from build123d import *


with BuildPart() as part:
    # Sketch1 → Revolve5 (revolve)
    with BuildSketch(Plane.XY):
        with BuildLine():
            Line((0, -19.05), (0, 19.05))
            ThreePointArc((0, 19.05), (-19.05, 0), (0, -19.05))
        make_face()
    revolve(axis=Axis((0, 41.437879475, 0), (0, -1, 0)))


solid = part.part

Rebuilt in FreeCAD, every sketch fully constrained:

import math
import FreeCAD as App
import Part
import Sketcher
from FreeCAD import Vector
Q = App.Units.Quantity

doc = App.newDocument("Part")
body = doc.addObject("PartDesign::Body", "Body")

sketch1 = body.newObject("Sketcher::SketchObject", "Sketch")
sketch1.AttachmentSupport = (doc.getObject("XY_Plane"), [""])
sketch1.MapMode = "FlatFace"
sketch1.addGeometry([
    Part.LineSegment(Vector(0, -19.05, 0), Vector(0, 19.05, 0)),
    Part.ArcOfCircle(Part.Circle(Vector(0, 0, 0), Vector(0, 0, 1), 19.05), math.radians(90), math.radians(270)),
], False)
sketch1.addConstraint([
    Sketcher.Constraint("Coincident", 0, 1, 1, 2),
    Sketcher.Constraint("Coincident", 1, 1, 0, 2),
    Sketcher.Constraint("Vertical", 0),
    Sketcher.Constraint("Coincident", 1, 3, -1, 1),
    Sketcher.Constraint("PointOnObject", 0, 1, -2),
    Sketcher.Constraint("Radius", 1, Q("0.75 in")),
])
revolution = body.newObject("PartDesign::Revolution", "Revolution")
revolution.Profile = sketch1
revolution.ReferenceAxis = (sketch1, ["V_Axis"])
revolution.Angle = 360

doc.recompute()
